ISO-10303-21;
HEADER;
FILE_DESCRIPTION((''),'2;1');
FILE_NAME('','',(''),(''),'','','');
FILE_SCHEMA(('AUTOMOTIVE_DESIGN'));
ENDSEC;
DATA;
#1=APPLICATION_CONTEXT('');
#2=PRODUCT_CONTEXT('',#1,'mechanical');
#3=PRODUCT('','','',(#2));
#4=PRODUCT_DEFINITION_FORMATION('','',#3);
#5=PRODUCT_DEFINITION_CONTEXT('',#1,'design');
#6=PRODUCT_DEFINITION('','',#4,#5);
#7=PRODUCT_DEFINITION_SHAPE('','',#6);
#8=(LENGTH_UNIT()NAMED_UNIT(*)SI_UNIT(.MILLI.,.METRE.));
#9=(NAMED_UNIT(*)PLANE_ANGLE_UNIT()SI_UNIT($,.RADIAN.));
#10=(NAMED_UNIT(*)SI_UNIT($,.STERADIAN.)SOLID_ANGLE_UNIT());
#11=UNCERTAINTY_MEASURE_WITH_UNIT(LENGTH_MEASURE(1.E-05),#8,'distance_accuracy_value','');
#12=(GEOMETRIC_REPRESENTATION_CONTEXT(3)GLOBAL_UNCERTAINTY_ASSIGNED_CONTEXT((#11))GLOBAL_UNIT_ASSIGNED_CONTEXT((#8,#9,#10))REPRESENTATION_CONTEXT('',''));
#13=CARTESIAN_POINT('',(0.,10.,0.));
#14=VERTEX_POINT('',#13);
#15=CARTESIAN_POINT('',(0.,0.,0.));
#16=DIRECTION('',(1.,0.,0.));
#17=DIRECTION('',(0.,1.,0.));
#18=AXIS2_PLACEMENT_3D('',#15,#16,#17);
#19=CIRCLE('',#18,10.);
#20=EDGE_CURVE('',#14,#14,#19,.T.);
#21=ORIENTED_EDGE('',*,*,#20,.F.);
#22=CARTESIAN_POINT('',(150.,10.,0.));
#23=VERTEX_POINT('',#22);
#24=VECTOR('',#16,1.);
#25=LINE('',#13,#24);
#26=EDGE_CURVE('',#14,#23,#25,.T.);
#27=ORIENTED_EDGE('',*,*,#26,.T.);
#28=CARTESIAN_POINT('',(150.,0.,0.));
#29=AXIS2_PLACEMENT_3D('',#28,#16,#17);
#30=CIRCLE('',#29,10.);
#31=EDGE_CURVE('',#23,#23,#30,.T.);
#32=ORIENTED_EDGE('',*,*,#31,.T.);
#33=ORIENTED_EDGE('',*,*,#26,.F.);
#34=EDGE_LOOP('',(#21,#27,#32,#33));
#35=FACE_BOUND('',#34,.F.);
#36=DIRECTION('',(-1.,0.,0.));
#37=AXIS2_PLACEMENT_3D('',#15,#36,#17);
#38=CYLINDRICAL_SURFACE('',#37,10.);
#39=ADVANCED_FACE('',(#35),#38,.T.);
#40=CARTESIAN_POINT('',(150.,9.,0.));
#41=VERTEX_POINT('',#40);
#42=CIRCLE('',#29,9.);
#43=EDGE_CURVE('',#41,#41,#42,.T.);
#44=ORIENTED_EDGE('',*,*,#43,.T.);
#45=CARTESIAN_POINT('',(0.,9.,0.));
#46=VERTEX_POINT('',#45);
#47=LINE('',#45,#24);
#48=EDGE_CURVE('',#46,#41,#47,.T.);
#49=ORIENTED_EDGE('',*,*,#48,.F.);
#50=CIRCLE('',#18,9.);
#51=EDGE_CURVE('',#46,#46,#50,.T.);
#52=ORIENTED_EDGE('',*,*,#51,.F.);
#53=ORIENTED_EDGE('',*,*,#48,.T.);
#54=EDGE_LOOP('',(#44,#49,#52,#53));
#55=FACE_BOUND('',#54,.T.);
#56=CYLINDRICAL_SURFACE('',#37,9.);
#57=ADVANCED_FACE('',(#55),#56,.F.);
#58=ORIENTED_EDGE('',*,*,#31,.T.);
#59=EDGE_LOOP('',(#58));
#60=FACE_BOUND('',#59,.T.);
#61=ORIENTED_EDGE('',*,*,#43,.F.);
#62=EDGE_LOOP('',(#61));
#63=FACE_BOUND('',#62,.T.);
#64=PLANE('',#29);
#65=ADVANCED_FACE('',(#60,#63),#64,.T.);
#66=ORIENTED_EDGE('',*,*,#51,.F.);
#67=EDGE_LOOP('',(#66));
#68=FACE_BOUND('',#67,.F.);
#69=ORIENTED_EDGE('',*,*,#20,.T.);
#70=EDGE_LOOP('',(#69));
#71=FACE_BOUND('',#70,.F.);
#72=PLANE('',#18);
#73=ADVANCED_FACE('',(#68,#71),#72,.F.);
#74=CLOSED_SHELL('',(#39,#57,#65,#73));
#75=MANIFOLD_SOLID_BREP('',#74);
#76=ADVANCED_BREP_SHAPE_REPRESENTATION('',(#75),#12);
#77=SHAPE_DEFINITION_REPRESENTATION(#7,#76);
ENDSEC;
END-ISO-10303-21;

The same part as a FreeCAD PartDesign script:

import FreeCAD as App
import Part
import Sketcher
from FreeCAD import Vector

doc = App.newDocument("Part")
params = doc.addObject("Spreadsheet::Sheet", "Params")
for row, (alias, value) in enumerate([
    ("sketch1_diameter", "20 mm"),
    ("sketch1_diameter2", "18 mm"),
    ("pad1_length", "150 mm"),
], start=1):
    params.set(f"A{row}", alias)
    params.set(f"B{row}", "=" + value)
    params.setAlias(f"B{row}", alias)

body = doc.addObject("PartDesign::Body", "Body")

# Sketch on YZ plane
sketch1 = doc.addObject("Sketcher::SketchObject", "Sketch")
body.addObject(sketch1)
sketch1.AttachmentSupport = (doc.YZ_Plane, [""])
sketch1.MapMode = "FlatFace"
sketch1.addGeometry(Part.Circle(Vector(0, 0, 0), Vector(0, 0, 1), 10), False)
sketch1.addGeometry(Part.Circle(Vector(0, 0, 0), Vector(0, 0, 1), 9), False)
sketch1.addConstraint(Sketcher.Constraint("Coincident", 0, 3, -1, 1))
sketch1.addConstraint(Sketcher.Constraint("Coincident", 1, 3, -1, 1))
sketch1.addConstraint(Sketcher.Constraint("Diameter", 0, 20.0))
sketch1.addConstraint(Sketcher.Constraint("Diameter", 1, 18.0))
sketch1.setExpression("Constraints[2]", "Params.sketch1_diameter")
sketch1.setExpression("Constraints[3]", "Params.sketch1_diameter2")
pad1 = doc.addObject("PartDesign::Pad", "Pad")
body.addObject(pad1)
pad1.Profile = sketch1
pad1.setExpression("Length", "Params.pad1_length")

doc.recompute()
